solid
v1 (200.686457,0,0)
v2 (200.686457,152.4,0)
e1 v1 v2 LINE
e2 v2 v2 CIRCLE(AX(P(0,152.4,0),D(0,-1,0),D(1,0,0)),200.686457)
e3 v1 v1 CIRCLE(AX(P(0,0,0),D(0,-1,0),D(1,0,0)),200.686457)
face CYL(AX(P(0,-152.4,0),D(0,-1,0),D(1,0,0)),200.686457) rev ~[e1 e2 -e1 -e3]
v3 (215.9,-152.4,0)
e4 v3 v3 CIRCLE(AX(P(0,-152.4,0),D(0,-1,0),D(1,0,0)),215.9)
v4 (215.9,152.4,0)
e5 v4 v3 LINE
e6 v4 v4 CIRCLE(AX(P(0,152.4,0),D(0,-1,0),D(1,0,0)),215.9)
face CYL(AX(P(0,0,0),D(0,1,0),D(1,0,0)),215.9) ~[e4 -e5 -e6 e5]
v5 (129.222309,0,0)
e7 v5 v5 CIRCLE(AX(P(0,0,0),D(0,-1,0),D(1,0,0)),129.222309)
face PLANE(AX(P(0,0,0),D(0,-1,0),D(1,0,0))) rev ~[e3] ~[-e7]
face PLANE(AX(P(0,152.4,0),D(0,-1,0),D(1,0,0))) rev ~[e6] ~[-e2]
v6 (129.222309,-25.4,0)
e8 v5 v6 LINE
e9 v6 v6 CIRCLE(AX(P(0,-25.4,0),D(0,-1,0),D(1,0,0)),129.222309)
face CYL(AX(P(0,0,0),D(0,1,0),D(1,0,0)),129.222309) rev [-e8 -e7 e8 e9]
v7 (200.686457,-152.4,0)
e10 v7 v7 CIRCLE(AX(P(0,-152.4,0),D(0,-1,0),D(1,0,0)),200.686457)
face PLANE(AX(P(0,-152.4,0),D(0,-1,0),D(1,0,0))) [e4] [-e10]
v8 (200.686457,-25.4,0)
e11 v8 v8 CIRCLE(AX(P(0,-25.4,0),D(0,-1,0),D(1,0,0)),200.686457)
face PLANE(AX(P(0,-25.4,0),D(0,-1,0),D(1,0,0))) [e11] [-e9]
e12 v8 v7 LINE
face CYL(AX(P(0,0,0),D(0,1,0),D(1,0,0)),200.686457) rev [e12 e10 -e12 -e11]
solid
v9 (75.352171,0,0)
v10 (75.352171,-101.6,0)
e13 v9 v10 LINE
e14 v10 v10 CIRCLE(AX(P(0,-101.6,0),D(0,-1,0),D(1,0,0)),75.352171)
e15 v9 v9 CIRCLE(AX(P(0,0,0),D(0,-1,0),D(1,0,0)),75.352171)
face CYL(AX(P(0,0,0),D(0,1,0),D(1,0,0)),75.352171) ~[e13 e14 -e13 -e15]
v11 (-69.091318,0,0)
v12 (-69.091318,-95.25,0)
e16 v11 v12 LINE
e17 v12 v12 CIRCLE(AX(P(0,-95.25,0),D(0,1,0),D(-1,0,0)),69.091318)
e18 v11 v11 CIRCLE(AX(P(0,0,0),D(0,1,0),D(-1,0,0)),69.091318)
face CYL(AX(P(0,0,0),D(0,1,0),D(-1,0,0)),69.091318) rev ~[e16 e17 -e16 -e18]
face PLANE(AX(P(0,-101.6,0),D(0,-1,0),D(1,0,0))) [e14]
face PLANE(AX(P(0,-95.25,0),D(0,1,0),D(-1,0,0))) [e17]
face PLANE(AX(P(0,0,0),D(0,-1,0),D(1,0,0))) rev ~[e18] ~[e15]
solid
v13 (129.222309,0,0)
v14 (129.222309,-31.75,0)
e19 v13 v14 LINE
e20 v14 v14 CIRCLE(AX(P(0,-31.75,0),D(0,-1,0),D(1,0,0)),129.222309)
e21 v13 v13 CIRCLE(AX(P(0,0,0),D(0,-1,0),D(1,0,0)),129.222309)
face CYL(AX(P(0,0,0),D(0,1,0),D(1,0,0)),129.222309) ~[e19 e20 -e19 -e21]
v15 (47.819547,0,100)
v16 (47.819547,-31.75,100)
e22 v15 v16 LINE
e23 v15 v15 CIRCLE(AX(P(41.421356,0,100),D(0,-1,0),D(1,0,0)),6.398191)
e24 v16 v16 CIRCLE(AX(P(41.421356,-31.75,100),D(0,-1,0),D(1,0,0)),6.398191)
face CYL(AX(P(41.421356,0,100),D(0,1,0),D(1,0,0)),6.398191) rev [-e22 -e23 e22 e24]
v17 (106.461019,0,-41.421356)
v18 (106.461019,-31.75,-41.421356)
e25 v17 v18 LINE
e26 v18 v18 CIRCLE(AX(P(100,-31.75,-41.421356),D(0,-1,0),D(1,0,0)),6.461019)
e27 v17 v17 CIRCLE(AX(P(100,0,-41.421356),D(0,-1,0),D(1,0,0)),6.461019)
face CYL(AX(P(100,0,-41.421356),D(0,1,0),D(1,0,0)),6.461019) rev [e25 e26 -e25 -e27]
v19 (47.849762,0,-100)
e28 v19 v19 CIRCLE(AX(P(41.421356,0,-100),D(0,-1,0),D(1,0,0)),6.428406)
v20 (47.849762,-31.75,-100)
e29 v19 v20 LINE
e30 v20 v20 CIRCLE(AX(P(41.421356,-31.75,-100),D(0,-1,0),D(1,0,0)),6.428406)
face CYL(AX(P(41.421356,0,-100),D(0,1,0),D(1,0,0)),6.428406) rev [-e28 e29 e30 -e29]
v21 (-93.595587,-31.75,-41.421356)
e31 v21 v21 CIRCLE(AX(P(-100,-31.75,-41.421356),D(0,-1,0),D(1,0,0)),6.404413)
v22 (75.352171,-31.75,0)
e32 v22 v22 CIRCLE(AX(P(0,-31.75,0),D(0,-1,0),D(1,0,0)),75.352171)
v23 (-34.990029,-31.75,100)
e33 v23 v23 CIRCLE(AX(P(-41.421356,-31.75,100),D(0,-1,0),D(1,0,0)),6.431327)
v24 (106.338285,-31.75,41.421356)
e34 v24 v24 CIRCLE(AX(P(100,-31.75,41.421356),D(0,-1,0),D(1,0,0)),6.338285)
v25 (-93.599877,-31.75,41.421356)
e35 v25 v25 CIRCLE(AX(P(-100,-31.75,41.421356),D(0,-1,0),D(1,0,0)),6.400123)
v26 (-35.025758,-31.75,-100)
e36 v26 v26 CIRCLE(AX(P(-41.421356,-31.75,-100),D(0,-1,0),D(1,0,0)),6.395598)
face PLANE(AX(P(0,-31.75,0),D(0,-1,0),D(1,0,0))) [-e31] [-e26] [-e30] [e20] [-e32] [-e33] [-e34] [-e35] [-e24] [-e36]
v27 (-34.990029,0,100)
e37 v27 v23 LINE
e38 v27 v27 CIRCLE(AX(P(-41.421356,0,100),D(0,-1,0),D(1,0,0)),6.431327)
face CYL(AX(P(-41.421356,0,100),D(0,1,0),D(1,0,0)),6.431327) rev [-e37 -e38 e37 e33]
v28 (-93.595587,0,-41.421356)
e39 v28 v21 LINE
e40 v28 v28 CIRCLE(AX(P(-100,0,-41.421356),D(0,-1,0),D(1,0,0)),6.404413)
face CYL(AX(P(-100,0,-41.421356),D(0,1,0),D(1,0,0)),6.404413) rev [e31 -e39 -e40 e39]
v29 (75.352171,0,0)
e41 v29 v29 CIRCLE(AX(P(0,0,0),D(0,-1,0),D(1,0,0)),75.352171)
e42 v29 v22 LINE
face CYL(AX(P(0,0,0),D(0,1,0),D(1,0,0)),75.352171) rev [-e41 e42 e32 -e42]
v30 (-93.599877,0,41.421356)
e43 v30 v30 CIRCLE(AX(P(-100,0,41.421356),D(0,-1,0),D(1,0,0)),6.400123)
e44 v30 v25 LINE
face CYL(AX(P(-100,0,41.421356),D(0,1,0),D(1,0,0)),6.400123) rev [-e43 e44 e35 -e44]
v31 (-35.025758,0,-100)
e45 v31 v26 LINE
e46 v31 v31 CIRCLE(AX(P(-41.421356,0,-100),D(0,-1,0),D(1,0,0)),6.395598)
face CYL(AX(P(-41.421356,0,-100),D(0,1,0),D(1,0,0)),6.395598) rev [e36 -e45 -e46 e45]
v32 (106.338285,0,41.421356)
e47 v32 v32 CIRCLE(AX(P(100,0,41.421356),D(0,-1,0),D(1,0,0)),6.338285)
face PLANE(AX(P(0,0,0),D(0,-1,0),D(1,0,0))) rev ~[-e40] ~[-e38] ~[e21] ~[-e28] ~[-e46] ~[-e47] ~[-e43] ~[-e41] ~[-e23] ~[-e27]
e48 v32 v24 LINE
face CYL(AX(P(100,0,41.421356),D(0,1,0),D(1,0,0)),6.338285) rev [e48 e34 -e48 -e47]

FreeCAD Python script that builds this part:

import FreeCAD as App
import Part
import Sketcher
Q = App.Units.Quantity

doc = App.newDocument("Part")
body = doc.addObject("PartDesign::Body", "Body")

# Sketch on XZ plane
sketch1 = doc.addObject("Sketcher::SketchObject", "Sketch")
body.addObject(sketch1)
sketch1.AttachmentSupport = (doc.XZ_Plane, [""])
sketch1.MapMode = "FlatFace"
sketch1.addGeometry([
    Part.Circle(App.Vector(0, 0, 0), App.Vector(0, 0, 1), 215.9),
    Part.Circle(App.Vector(0, 0, 0), App.Vector(0, 0, 1), 200.686457),
], False)
sketch1.addConstraint([
    Sketcher.Constraint("Coincident", 0, 3, -1, 1),
    Sketcher.Constraint("Coincident", 1, 3, -1, 1),
    Sketcher.Constraint("Diameter", 0, Q("17 in")),
    Sketcher.Constraint("Diameter", 1, 401.372914),
])
pad1 = doc.addObject("PartDesign::Pad", "Pad")
body.addObject(pad1)
pad1.Profile = sketch1
pad1.Length = Q("6 in")

# Sketch on XZ plane
sketch2 = doc.addObject("Sketcher::SketchObject", "Sketch001")
body.addObject(sketch2)
sketch2.AttachmentSupport = (doc.XZ_Plane, [""])
sketch2.MapMode = "FlatFace"
sketch2.addGeometry([
    Part.Circle(App.Vector(0, 0, 0), App.Vector(0, 0, 1), 200.686457),
    Part.Circle(App.Vector(0, 0, 0), App.Vector(0, 0, 1), 129.222309),
], False)
sketch2.addConstraint([
    Sketcher.Constraint("Coincident", 0, 3, -1, 1),
    Sketcher.Constraint("Coincident", 1, 3, -1, 1),
    Sketcher.Constraint("Diameter", 1, 258.444618),
    Sketcher.Constraint("Diameter", 0, 401.372914),
])
pad2 = doc.addObject("PartDesign::Pad", "Pad001")
body.addObject(pad2)
pad2.Profile = sketch2
pad2.Length = Q("1 in")

# Sketch on XZ plane
sketch3 = doc.addObject("Sketcher::SketchObject", "Sketch002")
body.addObject(sketch3)
sketch3.AttachmentSupport = (doc.XZ_Plane, [""])
sketch3.MapMode = "FlatFace"
sketch3.AttachmentOffset = App.Placement(App.Vector(0, 0, 6 * 25.4), App.Rotation())
sketch3.addGeometry([
    Part.Circle(App.Vector(0, 0, 0), App.Vector(0, 0, 1), 215.9),
    Part.Circle(App.Vector(0, 0, 0), App.Vector(0, 0, 1), 200.686457),
], False)
sketch3.addConstraint([
    Sketcher.Constraint("Coincident", 0, 3, -1, 1),
    Sketcher.Constraint("Coincident", 1, 3, -1, 1),
    Sketcher.Constraint("Diameter", 0, Q("17 in")),
    Sketcher.Constraint("Diameter", 1, 401.372914),
])
pad3 = doc.addObject("PartDesign::Pad", "Pad002")
body.addObject(pad3)
pad3.Profile = sketch3
pad3.Length = Q("12 in")
pad3.Reversed = True
body2 = doc.addObject("PartDesign::Body", "Body001")

# Sketch on XZ plane
sketch4 = doc.addObject("Sketcher::SketchObject", "Sketch003")
body2.addObject(sketch4)
sketch4.AttachmentSupport = (doc.getObject("XZ_Plane001"), [""])
sketch4.MapMode = "FlatFace"
sketch4.addGeometry(Part.Circle(App.Vector(0, 0, 0), App.Vector(0, 0, 1), 75.352171), False)
sketch4.addConstraint([
    Sketcher.Constraint("Coincident", 0, 3, -1, 1),
    Sketcher.Constraint("Diameter", 0, 150.704342),
])
pad4 = doc.addObject("PartDesign::Pad", "Pad003")
body2.addObject(pad4)
pad4.Profile = sketch4
pad4.Length = Q("4 in")

# Sketch on XZ plane
sketch5 = doc.addObject("Sketcher::SketchObject", "Sketch004")
body2.addObject(sketch5)
sketch5.AttachmentSupport = (doc.getObject("XZ_Plane001"), [""])
sketch5.MapMode = "FlatFace"
sketch5.addGeometry(Part.Circle(App.Vector(0, 0, 0), App.Vector(0, 0, 1), 69.091318), False)
sketch5.addConstraint([
    Sketcher.Constraint("Coincident", 0, 3, -1, 1),
    Sketcher.Constraint("Diameter", 0, 138.182636),
])
pocket1 = doc.addObject("PartDesign::Pocket", "Pocket")
body2.addObject(pocket1)
pocket1.Profile = sketch5
pocket1.Length = Q("3.75 in")
pocket1.Reversed = True
body3 = doc.addObject("PartDesign::Body", "Body002")

# Sketch on XZ plane
sketch6 = doc.addObject("Sketcher::SketchObject", "Sketch005")
body3.addObject(sketch6)
sketch6.AttachmentSupport = (doc.getObject("XZ_Plane002"), [""])
sketch6.MapMode = "FlatFace"
sketch6.addGeometry([
    Part.Circle(App.Vector(0, 0, 0), App.Vector(0, 0, 1), 129.222309),  # 0
    Part.Circle(App.Vector(-41.421356, -100, 0), App.Vector(0, 0, 1), 6.395598),  # 1
    Part.Circle(App.Vector(-100, -41.421356, 0), App.Vector(0, 0, 1), 6.404413),  # 2
    Part.Circle(App.Vector(0, 0, 0), App.Vector(0, 0, 1), 75.352171),  # 3
    Part.Circle(App.Vector(41.421356, -100, 0), App.Vector(0, 0, 1), 6.428406),  # 4
    Part.Circle(App.Vector(100, -41.421356, 0), App.Vector(0, 0, 1), 6.461019),  # 5
    Part.Circle(App.Vector(-100, 41.421356, 0), App.Vector(0, 0, 1), 6.400123),  # 6
    Part.Circle(App.Vector(-41.421356, 100, 0), App.Vector(0, 0, 1), 6.431327),  # 7
    Part.Circle(App.Vector(100, 41.421356, 0), App.Vector(0, 0, 1), 6.338285),  # 8
    Part.Circle(App.Vector(41.421356, 100, 0), App.Vector(0, 0, 1), 6.398191),  # 9
], False)
sketch6.addConstraint([
    Sketcher.Constraint("Coincident", 0, 3, -1, 1),
    Sketcher.Constraint("Coincident", 3, 3, -1, 1),
    Sketcher.Constraint("Symmetric", 5, 3, 6, 3, -1, 1),
    Sketcher.Constraint("Symmetric", 4, 3, 7, 3, -1, 1),
    Sketcher.Constraint("Symmetric", 2, 3, 8, 3, -1, 1),
    Sketcher.Constraint("Symmetric", 1, 3, 9, 3, -1, 1),
    Sketcher.Constraint("Symmetric", 1, 3, 4, 3, -2),
    Sketcher.Constraint("Symmetric", 2, 3, 5, 3, -2),
    Sketcher.Constraint("Diameter", 0, 258.444618),
    Sketcher.Constraint("Diameter", 3, 150.704342),
    Sketcher.Constraint("Diameter", 8, 12.67657),
    Sketcher.Constraint("Diameter", 1, 12.791196),
    Sketcher.Constraint("Diameter", 2, 12.808826),
    Sketcher.Constraint("Diameter", 4, 12.856812),
    Sketcher.Constraint("Diameter", 5, 12.922038),
    Sketcher.Constraint("Diameter", 6, 12.800246),
    Sketcher.Constraint("Diameter", 7, 12.862654),
    Sketcher.Constraint("Diameter", 9, 12.796382),
    Sketcher.Constraint("DistanceY", 1, 3, -1, 1, 100.0),
    Sketcher.Constraint("DistanceX", 2, 3, -1, 1, 100.0),
    Sketcher.Constraint("DistanceX", 1, 3, -1, 1, 41.421356),
    Sketcher.Constraint("DistanceY", 2, 3, -1, 1, 41.421356),
])
pad5 = doc.addObject("PartDesign::Pad", "Pad004")
body3.addObject(pad5)
pad5.Profile = sketch6
pad5.Length = Q("1.25 in")

doc.recompute()
